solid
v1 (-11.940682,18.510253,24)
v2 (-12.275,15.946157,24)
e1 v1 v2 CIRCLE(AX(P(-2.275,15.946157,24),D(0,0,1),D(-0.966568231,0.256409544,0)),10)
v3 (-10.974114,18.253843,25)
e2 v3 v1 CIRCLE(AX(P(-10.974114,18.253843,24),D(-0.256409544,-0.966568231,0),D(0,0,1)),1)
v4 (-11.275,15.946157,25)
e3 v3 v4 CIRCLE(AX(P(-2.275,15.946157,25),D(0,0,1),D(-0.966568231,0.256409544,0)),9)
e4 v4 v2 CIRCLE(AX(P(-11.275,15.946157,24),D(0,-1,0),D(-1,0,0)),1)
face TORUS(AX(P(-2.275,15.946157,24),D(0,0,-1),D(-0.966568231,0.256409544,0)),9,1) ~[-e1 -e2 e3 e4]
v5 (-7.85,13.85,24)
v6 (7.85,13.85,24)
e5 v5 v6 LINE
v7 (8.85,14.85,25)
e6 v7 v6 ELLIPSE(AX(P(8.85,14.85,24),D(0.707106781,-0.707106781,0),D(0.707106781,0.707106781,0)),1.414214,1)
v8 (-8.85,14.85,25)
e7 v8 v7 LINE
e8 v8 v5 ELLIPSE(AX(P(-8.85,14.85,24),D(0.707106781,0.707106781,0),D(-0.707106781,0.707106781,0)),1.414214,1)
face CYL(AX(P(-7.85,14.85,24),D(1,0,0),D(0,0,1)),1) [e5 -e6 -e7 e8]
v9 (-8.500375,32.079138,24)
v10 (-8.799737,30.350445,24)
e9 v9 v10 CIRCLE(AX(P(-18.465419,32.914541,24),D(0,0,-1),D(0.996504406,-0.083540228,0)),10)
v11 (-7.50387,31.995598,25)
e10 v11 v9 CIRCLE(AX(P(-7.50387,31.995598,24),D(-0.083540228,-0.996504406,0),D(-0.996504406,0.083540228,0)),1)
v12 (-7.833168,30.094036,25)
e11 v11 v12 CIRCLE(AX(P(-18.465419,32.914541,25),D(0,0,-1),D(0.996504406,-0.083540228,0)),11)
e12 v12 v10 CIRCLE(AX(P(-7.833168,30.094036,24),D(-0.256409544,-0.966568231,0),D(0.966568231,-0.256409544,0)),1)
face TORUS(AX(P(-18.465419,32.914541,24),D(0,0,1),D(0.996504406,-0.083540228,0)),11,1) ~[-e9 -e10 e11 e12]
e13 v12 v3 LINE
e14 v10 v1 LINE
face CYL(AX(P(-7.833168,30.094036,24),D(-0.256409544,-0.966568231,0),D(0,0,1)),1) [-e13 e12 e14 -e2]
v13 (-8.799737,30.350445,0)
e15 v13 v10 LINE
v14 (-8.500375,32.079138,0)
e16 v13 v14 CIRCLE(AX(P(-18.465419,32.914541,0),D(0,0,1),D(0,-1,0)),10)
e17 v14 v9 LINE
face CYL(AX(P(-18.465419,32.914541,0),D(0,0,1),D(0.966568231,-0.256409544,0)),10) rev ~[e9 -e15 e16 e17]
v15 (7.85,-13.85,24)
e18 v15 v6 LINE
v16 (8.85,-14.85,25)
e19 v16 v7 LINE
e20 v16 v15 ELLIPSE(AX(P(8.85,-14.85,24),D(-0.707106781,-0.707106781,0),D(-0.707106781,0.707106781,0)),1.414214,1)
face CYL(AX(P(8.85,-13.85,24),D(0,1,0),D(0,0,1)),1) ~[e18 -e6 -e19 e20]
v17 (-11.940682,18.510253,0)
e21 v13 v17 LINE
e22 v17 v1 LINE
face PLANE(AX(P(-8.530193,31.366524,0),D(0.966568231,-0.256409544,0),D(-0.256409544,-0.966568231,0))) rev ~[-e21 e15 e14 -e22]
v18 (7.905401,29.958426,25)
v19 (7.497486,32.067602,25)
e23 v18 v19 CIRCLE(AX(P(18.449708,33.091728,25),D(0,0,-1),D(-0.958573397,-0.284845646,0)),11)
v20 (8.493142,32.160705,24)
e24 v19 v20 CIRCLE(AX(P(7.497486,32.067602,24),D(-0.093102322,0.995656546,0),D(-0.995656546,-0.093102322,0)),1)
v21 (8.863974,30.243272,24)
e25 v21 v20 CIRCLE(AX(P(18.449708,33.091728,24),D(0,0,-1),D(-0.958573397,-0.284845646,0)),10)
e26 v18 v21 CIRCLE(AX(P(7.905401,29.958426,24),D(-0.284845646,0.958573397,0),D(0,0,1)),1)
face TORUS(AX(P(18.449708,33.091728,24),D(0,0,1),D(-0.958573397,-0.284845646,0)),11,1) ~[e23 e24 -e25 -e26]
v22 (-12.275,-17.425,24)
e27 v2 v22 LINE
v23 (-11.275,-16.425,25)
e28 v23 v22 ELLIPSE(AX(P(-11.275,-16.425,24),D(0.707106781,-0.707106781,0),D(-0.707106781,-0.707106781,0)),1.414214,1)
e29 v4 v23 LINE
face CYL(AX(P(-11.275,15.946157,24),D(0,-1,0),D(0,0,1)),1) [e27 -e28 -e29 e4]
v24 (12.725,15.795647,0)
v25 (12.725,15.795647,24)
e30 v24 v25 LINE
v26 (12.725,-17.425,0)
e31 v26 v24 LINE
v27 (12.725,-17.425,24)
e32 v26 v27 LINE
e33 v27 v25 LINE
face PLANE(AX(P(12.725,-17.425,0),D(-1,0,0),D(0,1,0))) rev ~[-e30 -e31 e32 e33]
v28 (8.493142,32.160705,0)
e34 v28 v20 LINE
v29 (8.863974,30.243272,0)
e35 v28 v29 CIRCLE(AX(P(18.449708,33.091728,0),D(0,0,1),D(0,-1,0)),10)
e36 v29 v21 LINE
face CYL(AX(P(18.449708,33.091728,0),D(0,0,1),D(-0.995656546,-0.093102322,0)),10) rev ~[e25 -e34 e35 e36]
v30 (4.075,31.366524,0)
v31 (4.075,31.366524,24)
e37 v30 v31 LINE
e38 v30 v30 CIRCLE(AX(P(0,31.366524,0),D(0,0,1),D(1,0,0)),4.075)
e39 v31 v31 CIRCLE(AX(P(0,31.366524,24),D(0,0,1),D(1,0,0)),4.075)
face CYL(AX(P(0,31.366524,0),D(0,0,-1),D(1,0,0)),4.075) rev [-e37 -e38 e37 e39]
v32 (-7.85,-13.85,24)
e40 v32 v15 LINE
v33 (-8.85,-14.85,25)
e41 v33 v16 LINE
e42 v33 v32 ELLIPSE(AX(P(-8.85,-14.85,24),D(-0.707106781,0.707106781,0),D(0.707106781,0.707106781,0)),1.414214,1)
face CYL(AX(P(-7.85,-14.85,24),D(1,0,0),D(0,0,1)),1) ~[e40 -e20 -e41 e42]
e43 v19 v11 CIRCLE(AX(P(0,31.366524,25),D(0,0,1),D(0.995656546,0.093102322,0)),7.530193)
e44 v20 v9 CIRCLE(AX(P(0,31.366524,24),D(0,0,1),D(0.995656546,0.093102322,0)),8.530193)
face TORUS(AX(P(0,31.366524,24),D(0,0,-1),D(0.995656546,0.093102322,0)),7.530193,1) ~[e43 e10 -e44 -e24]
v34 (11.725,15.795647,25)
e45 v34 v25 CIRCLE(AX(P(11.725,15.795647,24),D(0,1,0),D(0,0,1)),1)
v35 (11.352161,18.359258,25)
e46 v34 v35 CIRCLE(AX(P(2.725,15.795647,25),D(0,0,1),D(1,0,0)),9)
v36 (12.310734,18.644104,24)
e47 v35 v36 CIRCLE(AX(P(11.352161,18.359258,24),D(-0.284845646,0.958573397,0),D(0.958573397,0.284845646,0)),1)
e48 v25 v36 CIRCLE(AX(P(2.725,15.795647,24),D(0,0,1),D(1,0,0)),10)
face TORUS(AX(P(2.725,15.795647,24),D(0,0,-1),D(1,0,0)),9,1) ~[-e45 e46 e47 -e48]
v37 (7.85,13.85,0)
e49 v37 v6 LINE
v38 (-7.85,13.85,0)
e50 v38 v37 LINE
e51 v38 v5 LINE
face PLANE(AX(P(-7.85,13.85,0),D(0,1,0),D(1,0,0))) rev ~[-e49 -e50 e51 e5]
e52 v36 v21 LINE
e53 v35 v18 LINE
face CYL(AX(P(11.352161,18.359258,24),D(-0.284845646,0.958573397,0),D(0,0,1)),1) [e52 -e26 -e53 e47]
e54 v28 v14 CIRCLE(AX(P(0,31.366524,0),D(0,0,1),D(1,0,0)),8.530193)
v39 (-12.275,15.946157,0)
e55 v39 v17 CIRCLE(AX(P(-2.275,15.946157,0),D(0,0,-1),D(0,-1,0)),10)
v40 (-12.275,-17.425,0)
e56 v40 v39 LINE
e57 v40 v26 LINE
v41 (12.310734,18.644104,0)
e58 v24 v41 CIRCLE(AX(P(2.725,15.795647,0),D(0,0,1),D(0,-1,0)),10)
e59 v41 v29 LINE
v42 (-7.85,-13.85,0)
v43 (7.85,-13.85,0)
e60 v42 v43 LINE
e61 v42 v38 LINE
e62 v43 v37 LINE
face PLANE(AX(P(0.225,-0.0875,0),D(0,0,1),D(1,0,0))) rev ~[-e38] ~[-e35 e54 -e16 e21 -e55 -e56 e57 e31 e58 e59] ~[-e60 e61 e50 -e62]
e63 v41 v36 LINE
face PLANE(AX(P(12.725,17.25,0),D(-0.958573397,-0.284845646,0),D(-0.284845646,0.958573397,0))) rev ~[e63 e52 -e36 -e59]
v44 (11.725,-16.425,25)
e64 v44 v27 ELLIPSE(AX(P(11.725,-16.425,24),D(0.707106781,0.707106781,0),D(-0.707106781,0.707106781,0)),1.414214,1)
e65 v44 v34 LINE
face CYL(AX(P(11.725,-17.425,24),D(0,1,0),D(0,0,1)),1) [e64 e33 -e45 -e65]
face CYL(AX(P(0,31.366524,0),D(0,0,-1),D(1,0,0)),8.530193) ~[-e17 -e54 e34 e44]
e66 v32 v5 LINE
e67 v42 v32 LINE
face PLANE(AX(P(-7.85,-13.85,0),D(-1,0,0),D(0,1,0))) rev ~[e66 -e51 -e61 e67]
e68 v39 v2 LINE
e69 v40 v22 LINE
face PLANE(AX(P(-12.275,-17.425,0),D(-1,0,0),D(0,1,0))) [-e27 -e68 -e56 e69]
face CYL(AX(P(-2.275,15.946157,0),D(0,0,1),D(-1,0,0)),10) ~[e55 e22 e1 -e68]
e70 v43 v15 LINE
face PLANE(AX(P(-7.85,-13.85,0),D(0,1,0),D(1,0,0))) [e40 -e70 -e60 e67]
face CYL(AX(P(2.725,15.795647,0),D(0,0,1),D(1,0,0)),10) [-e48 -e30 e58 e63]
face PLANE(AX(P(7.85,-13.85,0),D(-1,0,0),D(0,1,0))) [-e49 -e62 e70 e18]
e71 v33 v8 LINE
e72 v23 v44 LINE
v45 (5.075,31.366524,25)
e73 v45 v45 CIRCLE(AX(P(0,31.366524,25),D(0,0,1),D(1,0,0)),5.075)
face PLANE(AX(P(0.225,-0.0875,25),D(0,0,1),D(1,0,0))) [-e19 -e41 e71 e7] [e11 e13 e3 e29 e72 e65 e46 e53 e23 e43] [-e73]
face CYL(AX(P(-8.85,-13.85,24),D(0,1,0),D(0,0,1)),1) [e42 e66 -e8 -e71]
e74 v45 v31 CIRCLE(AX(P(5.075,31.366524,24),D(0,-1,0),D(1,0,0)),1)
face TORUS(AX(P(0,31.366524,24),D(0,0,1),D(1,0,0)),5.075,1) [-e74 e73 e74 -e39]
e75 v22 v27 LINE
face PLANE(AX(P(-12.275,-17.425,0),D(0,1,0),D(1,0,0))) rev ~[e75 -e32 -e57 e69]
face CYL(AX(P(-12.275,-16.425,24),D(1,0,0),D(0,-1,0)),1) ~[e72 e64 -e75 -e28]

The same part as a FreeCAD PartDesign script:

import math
import FreeCAD as App
import Part
import Sketcher

V = App.Vector


def edges_at(feature, points):
    """Names of the edges that pass closest to the given points."""
    edges = feature.Shape.Edges
    near = lambda p: min(range(len(edges)), key=lambda i: edges[i].distToShape(Part.Vertex(*p))[0])
    return sorted({f"Edge{near(p) + 1}" for p in points})

doc = App.newDocument("Part")
body = doc.addObject("PartDesign::Body", "Body")

# Sketch on XY plane
sketch1 = doc.addObject("Sketcher::SketchObject", "Sketch")
body.addObject(sketch1)
sketch1.AttachmentSupport = (doc.XY_Plane, [""])
sketch1.MapMode = "FlatFace"
sketch1.addGeometry(Part.LineSegment(V(-12.275, 17.25, 0), V(-12.275, -17.425, 0)), False)
sketch1.addGeometry(Part.LineSegment(V(-12.275, -17.425, 0), V(12.725, -17.425, 0)), False)
sketch1.addGeometry(Part.LineSegment(V(12.725, -17.425, 0), V(12.725, 17.25, 0)), False)
sketch1.addGeometry(Part.LineSegment(V(12.725, 17.25, 0), V(8.530193, 31.366524, 0)), False)
sketch1.addGeometry(Part.ArcOfCircle(Part.Circle(V(0, 31.366524, 0), V(0, 0, 1), 8.530193), math.radians(0), math.radians(180)), False)
sketch1.addGeometry(Part.LineSegment(V(-8.530193, 31.366524, 0), V(-12.275, 17.25, 0)), False)
sketch1.addGeometry(Part.LineSegment(V(7.85, -13.85, 0), V(-7.85, -13.85, 0)), False)
sketch1.addGeometry(Part.LineSegment(V(-7.85, -13.85, 0), V(-7.85, 13.85, 0)), False)
sketch1.addGeometry(Part.LineSegment(V(-7.85, 13.85, 0), V(7.85, 13.85, 0)), False)
sketch1.addGeometry(Part.LineSegment(V(7.85, 13.85, 0), V(7.85, -13.85, 0)), False)
sketch1.addGeometry(Part.Circle(V(0, 31.366524, 0), V(0, 0, 1), 4.075), False)
sketch1.addConstraint(Sketcher.Constraint("Coincident", 0, 2, 1, 1))
sketch1.addConstraint(Sketcher.Constraint("Coincident", 1, 2, 2, 1))
sketch1.addConstraint(Sketcher.Constraint("Coincident", 2, 2, 3, 1))
sketch1.addConstraint(Sketcher.Constraint("Coincident", 3, 2, 4, 1))
sketch1.addConstraint(Sketcher.Constraint("Coincident", 4, 2, 5, 1))
sketch1.addConstraint(Sketcher.Constraint("Coincident", 5, 2, 0, 1))
sketch1.addConstraint(Sketcher.Constraint("Coincident", 6, 2, 7, 1))
sketch1.addConstraint(Sketcher.Constraint("Coincident", 7, 2, 8, 1))
sketch1.addConstraint(Sketcher.Constraint("Coincident", 8, 2, 9, 1))
sketch1.addConstraint(Sketcher.Constraint("Coincident", 9, 2, 6, 1))
sketch1.addConstraint(Sketcher.Constraint("Vertical", 0))
sketch1.addConstraint(Sketcher.Constraint("Horizontal", 1))
sketch1.addConstraint(Sketcher.Constraint("Vertical", 2))
sketch1.addConstraint(Sketcher.Constraint("Horizontal", 6))
sketch1.addConstraint(Sketcher.Constraint("Vertical", 7))
sketch1.addConstraint(Sketcher.Constraint("Horizontal", 8))
sketch1.addConstraint(Sketcher.Constraint("Vertical", 9))
sketch1.addConstraint(Sketcher.Constraint("Coincident", 10, 3, 4, 3))
sketch1.addConstraint(Sketcher.Constraint("Symmetric", 6, 2, 8, 2, -1, 1))
sketch1.addConstraint(Sketcher.Constraint("Symmetric", 3, 2, 4, 2, -2))
sketch1.addConstraint(Sketcher.Constraint("Horizontal", 10, 3, 3, 2))
sketch1.addConstraint(Sketcher.Constraint("Horizontal", 2, 2, 5, 2))
sketch1.addConstraint(Sketcher.Constraint("Diameter", 10, 8.15))
sketch1.addConstraint(Sketcher.Constraint("DistanceX", 1, 1, 1, 2, 25.0))
sketch1.addConstraint(Sketcher.Constraint("DistanceX", 6, 2, 6, 1, 15.7))
sketch1.addConstraint(Sketcher.Constraint("DistanceY", 7, 1, 7, 2, 27.7))
sketch1.addConstraint(Sketcher.Constraint("DistanceY", 6, 2, 5, 2, 31.1))
sketch1.addConstraint(Sketcher.Constraint("DistanceY", 0, 2, 0, 1, 34.675))
sketch1.addConstraint(Sketcher.Constraint("DistanceX", 0, 2, -1, 1, 12.275))
sketch1.addConstraint(Sketcher.Constraint("Radius", 4, 8.530193))
sketch1.addConstraint(Sketcher.Constraint("Distance", 3, 14.726597))
pad1 = doc.addObject("PartDesign::Pad", "Pad")
body.addObject(pad1)
pad1.Profile = sketch1
pad1.Length = 25
doc.recompute()

fillet = doc.addObject("PartDesign::Fillet", "Fillet")
body.addObject(fillet)
fillet.Base = (pad1, edges_at(pad1, [
    (12.725, 17.25, 12.5),
    (8.53, 31.367, 12.5),
    (-8.53, 31.367, 12.5),
    (-12.275, 17.25, 12.5),
]))
fillet.Radius = 10
doc.recompute()

fillet2 = doc.addObject("PartDesign::Fillet", "Fillet001")
body.addObject(fillet2)
fillet2.Base = (fillet, edges_at(fillet, [
    (12.725, -0.815, 25),
    (12.621, 17.235, 25),
    (0.225, -17.425, 25),
    (10.587, 24.444, 25),
    (-12.275, -0.739, 25),
    (8.632, 31.193, 25),
    (-12.191, 17.239, 25),
    (-0.041, 39.897, 25),
    (-10.37, 24.43, 25),
    (-8.612, 31.208, 25),
    (7.85, 0, 25),
    (0, -13.85, 25),
    (-7.85, 0, 25),
    (0, 13.85, 25),
    (-4.075, 31.367, 25),
]))
fillet2.Radius = 1

doc.recompute()
